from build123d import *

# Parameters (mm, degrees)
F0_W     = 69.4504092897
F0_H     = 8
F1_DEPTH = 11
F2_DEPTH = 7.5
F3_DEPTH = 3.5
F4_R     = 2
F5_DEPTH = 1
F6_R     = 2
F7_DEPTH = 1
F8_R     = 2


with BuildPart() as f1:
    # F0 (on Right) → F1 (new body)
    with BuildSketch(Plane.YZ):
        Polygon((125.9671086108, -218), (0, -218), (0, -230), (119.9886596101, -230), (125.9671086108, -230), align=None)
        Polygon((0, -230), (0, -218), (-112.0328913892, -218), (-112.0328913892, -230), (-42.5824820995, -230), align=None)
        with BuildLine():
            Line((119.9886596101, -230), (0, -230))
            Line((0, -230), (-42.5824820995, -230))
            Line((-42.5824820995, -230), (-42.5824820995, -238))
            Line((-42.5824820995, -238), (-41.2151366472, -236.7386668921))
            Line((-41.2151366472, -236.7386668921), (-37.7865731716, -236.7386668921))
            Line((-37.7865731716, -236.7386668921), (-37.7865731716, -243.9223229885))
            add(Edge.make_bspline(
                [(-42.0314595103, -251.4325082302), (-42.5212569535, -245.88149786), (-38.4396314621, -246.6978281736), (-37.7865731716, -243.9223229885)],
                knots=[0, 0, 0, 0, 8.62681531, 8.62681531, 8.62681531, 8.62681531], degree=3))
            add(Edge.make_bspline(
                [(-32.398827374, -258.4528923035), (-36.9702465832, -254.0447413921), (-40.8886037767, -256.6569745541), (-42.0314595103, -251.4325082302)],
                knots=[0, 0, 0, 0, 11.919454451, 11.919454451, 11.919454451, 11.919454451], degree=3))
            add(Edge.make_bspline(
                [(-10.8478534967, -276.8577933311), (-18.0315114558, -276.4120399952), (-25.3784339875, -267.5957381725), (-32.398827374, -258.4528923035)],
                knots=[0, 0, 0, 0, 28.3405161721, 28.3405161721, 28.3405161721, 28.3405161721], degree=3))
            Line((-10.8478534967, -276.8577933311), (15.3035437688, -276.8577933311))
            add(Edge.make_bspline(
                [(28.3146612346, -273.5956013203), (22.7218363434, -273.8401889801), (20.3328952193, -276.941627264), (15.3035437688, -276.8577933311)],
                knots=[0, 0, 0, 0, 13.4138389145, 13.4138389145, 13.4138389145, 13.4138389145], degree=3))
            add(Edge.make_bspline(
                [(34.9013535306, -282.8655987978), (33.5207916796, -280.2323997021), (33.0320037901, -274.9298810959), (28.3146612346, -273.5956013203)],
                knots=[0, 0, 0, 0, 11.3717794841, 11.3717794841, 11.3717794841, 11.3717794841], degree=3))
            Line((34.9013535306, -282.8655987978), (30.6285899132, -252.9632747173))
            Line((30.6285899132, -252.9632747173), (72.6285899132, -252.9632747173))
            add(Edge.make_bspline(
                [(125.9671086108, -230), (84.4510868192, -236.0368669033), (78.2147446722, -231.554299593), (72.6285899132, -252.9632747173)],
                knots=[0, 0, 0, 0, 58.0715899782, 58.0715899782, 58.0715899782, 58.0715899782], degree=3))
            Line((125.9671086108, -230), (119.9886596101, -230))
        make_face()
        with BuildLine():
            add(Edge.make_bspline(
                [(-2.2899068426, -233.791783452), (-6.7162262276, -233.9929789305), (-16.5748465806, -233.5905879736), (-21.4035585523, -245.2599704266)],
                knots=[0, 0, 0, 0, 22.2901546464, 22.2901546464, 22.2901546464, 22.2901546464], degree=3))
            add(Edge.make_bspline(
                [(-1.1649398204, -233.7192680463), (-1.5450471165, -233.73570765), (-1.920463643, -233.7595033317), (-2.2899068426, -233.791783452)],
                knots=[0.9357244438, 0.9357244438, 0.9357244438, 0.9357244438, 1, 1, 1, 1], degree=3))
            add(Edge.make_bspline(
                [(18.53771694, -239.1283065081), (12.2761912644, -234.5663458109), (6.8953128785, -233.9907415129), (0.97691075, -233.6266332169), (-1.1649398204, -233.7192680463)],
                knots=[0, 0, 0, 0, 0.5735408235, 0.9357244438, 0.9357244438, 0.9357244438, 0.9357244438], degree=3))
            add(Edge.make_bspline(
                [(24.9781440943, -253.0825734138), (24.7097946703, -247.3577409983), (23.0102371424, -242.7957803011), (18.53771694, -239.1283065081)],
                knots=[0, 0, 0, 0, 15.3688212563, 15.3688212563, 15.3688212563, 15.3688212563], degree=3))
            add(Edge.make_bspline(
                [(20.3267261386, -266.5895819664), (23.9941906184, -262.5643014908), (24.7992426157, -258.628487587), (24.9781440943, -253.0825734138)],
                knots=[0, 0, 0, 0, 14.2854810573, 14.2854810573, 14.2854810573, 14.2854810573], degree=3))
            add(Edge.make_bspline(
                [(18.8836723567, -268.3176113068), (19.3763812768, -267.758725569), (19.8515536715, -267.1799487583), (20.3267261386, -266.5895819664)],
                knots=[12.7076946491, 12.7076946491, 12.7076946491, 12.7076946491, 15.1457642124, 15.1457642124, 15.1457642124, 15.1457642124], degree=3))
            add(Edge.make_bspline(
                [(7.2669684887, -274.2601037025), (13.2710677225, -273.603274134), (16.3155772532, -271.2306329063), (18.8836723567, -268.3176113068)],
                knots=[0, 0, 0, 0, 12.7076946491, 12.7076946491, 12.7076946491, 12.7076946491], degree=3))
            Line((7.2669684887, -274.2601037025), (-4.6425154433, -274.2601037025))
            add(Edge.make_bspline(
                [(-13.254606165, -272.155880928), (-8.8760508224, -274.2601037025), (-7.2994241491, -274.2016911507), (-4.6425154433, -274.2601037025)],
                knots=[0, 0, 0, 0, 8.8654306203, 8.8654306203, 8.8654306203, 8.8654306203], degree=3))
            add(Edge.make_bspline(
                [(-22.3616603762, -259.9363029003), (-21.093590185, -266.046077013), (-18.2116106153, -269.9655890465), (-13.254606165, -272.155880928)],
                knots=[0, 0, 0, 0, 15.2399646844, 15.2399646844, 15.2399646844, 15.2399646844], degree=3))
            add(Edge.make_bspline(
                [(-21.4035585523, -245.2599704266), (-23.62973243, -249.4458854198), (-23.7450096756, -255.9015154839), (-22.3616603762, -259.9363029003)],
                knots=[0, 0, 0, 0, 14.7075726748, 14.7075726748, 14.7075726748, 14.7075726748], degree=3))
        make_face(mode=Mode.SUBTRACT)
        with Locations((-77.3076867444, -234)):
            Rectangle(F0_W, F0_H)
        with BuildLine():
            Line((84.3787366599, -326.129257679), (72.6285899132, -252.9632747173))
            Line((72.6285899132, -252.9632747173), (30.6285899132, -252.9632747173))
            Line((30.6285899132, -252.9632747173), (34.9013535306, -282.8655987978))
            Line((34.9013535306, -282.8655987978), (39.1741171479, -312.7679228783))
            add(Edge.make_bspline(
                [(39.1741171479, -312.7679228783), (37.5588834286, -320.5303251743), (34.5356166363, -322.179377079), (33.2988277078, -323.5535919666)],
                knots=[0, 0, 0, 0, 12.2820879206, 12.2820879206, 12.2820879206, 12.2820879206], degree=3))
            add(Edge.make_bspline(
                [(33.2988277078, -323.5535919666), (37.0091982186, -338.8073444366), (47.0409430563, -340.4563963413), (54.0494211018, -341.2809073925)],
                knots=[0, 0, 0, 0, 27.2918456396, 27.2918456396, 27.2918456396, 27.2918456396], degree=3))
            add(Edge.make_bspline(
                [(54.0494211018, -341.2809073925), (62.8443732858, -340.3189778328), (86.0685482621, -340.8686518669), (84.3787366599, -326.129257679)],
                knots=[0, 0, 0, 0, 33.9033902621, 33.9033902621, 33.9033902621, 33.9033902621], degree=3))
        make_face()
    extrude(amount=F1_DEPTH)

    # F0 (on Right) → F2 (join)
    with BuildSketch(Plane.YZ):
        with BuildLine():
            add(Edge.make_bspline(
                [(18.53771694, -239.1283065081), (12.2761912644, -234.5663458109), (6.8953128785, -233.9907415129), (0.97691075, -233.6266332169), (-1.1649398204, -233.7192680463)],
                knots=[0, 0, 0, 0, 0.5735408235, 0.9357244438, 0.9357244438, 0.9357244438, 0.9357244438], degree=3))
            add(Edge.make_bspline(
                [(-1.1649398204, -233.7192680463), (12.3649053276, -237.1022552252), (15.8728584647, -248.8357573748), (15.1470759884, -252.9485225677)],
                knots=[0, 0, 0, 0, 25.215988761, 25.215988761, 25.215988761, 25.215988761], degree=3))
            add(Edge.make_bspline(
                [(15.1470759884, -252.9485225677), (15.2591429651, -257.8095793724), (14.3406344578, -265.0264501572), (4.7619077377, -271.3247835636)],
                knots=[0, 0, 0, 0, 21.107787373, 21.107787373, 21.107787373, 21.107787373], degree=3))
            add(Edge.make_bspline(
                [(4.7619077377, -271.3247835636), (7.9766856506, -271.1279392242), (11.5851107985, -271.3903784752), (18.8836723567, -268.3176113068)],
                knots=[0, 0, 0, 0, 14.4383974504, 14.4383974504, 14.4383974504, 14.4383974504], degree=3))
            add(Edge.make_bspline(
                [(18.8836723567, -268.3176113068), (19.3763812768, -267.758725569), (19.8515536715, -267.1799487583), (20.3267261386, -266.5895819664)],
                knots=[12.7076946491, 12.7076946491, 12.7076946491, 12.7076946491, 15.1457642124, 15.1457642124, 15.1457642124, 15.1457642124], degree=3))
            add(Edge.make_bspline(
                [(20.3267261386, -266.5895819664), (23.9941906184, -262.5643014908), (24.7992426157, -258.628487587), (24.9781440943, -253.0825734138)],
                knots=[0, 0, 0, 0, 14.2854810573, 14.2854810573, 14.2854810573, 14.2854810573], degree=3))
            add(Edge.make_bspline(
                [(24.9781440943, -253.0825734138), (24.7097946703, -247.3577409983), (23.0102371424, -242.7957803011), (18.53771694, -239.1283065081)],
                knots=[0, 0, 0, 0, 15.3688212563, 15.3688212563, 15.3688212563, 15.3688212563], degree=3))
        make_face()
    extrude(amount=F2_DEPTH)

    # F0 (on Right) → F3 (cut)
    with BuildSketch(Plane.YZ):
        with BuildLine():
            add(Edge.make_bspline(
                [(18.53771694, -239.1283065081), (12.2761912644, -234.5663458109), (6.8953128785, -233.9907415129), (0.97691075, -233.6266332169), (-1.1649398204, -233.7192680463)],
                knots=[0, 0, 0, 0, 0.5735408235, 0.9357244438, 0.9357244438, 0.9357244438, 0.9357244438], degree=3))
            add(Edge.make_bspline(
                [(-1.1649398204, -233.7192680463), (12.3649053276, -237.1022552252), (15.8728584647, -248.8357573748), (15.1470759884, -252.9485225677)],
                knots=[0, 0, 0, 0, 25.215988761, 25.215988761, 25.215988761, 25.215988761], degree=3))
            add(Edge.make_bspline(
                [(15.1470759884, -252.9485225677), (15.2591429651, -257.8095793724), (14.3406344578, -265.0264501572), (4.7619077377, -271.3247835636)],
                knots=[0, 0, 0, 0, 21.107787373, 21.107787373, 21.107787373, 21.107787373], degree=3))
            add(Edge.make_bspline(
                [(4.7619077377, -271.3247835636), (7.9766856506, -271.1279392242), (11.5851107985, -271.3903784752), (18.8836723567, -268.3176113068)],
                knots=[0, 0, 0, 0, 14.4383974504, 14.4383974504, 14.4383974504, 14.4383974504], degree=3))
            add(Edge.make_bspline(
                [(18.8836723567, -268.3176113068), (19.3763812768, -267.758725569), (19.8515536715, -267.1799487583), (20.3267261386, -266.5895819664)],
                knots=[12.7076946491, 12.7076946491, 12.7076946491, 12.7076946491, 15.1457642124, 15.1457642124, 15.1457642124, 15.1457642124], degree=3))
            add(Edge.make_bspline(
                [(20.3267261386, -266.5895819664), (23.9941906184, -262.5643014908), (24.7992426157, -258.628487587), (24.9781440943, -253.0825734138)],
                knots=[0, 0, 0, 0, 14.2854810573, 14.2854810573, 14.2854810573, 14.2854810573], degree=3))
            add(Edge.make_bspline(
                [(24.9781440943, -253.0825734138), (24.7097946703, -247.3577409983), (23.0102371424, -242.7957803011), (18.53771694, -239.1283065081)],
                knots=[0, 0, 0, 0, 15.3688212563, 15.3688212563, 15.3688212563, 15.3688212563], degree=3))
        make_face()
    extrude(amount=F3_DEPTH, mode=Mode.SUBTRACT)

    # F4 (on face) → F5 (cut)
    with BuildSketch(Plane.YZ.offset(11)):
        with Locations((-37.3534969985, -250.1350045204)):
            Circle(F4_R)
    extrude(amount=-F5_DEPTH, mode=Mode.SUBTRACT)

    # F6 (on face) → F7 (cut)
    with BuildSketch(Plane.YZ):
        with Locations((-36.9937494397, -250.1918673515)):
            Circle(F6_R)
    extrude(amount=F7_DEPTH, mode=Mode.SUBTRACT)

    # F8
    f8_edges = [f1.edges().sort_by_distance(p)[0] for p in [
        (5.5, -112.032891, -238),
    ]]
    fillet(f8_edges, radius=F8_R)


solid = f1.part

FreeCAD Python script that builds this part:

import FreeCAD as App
import Part
import Sketcher
Q = App.Units.Quantity


def edges_at(feature, points):
    """Names of the edges that pass closest to the given points."""
    edges = feature.Shape.Edges
    near = lambda p: min(range(len(edges)), key=lambda i: edges[i].distToShape(Part.Vertex(*p))[0])
    return sorted({f"Edge{near(p) + 1}" for p in points})

doc = App.newDocument("Part")
body = doc.addObject("PartDesign::Body", "Body")

sketch1 = body.newObject("Sketcher::SketchObject", "Sketch")
sketch1.AttachmentSupport = (doc.getObject("YZ_Plane"), [""])
sketch1.MapMode = "FlatFace"
sketch1.addGeometry([
    Part.LineSegment(App.Vector(125.967109, -218, 0), App.Vector(-112.032891, -218, 0)),
    Part.LineSegment(App.Vector(-112.032891, -218, 0), App.Vector(-112.032891, -230, 0)),
    Part.LineSegment(App.Vector(-112.032891, -230, 0), App.Vector(-112.032891, -238, 0)),
    Part.LineSegment(App.Vector(-112.032891, -238, 0), App.Vector(-42.582482, -238, 0)),
    Part.LineSegment(App.Vector(-42.582482, -238, 0), App.Vector(-41.215137, -236.738667, 0)),
    Part.LineSegment(App.Vector(-41.215137, -236.738667, 0), App.Vector(-37.786573, -236.738667, 0)),
    Part.LineSegment(App.Vector(-37.786573, -236.738667, 0), App.Vector(-37.786573, -243.922323, 0)),
    Part.BSplineCurve([App.Vector(-42.03146, -251.432508, 0), App.Vector(-42.521257, -245.881498, 0), App.Vector(-38.439631, -246.697828, 0), App.Vector(-37.786573, -243.922323, 0)], [4, 4], [0, 8.62681531], False, 3, [1, 1, 1, 1], False),
    Part.BSplineCurve([App.Vector(-32.398827, -258.452892, 0), App.Vector(-36.970247, -254.044741, 0), App.Vector(-40.888604, -256.656975, 0), App.Vector(-42.03146, -251.432508, 0)], [4, 4], [0, 11.919454451], False, 3, [1, 1, 1, 1], False),
    Part.BSplineCurve([App.Vector(-10.847853, -276.857793, 0), App.Vector(-18.031511, -276.41204, 0), App.Vector(-25.378434, -267.595738, 0), App.Vector(-32.398827, -258.452892, 0)], [4, 4], [0, 28.340516172], False, 3, [1, 1, 1, 1], False),
    Part.LineSegment(App.Vector(-10.847853, -276.857793, 0), App.Vector(15.303544, -276.857793, 0)),
    Part.BSplineCurve([App.Vector(28.314661, -273.595601, 0), App.Vector(22.721836, -273.840189, 0), App.Vector(20.332895, -276.941627, 0), App.Vector(15.303544, -276.857793, 0)], [4, 4], [0, 13.413838914], False, 3, [1, 1, 1, 1], False),
    Part.BSplineCurve([App.Vector(34.901354, -282.865599, 0), App.Vector(33.520792, -280.2324, 0), App.Vector(33.032004, -274.929881, 0), App.Vector(28.314661, -273.595601, 0)], [4, 4], [0, 11.371779484], False, 3, [1, 1, 1, 1], False),
    Part.LineSegment(App.Vector(34.901354, -282.865599, 0), App.Vector(39.174117, -312.767923, 0)),
    Part.BSplineCurve([App.Vector(39.174117, -312.767923, 0), App.Vector(37.558883, -320.530325, 0), App.Vector(34.535617, -322.179377, 0), App.Vector(33.298828, -323.553592, 0)], [4, 4], [0, 12.282087921], False, 3, [1, 1, 1, 1], False),
    Part.BSplineCurve([App.Vector(33.298828, -323.553592, 0), App.Vector(37.009198, -338.807344, 0), App.Vector(47.040943, -340.456396, 0), App.Vector(54.049421, -341.280907, 0)], [4, 4], [0, 27.29184564], False, 3, [1, 1, 1, 1], False),
    Part.BSplineCurve([App.Vector(54.049421, -341.280907, 0), App.Vector(62.844373, -340.318978, 0), App.Vector(86.068548, -340.868652, 0), App.Vector(84.378737, -326.129258, 0)], [4, 4], [0, 33.903390262], False, 3, [1, 1, 1, 1], False),
    Part.LineSegment(App.Vector(84.378737, -326.129258, 0), App.Vector(72.62859, -252.963275, 0)),
    Part.BSplineCurve([App.Vector(125.967109, -230, 0), App.Vector(84.451087, -236.036867, 0), App.Vector(78.214745, -231.5543, 0), App.Vector(72.62859, -252.963275, 0)], [4, 4], [0, 58.071589978], False, 3, [1, 1, 1, 1], False),
    Part.LineSegment(App.Vector(125.967109, -230, 0), App.Vector(125.967109, -218, 0)),
    Part.BSplineCurve([App.Vector(-2.289907, -233.791783, 0), App.Vector(-6.716226, -233.992979, 0), App.Vector(-16.574847, -233.590588, 0), App.Vector(-21.403559, -245.25997, 0)], [4, 4], [0, 22.290154646], False, 3, [1, 1, 1, 1], False),
    Part.BSplineCurve([App.Vector(-1.16494, -233.719268, 0), App.Vector(-1.545047, -233.735708, 0), App.Vector(-1.920464, -233.759503, 0), App.Vector(-2.289907, -233.791783, 0)], [4, 4], [0.935724444, 1], False, 3, [1, 1, 1, 1], False),
    Part.BSplineCurve([App.Vector(18.537717, -239.128307, 0), App.Vector(12.276191, -234.566346, 0), App.Vector(6.895313, -233.990742, 0), App.Vector(0.976911, -233.626633, 0), App.Vector(-1.16494, -233.719268, 0)], [4, 1, 4], [0, 0.573540824, 0.935724444], False, 3, [1, 1, 1, 1, 1], False),
    Part.BSplineCurve([App.Vector(24.978144, -253.082573, 0), App.Vector(24.709795, -247.357741, 0), App.Vector(23.010237, -242.79578, 0), App.Vector(18.537717, -239.128307, 0)], [4, 4], [0, 15.368821256], False, 3, [1, 1, 1, 1], False),
    Part.BSplineCurve([App.Vector(20.326726, -266.589582, 0), App.Vector(23.994191, -262.564301, 0), App.Vector(24.799243, -258.628488, 0), App.Vector(24.978144, -253.082573, 0)], [4, 4], [0, 14.285481057], False, 3, [1, 1, 1, 1], False),
    Part.BSplineCurve([App.Vector(18.883672, -268.317611, 0), App.Vector(19.376381, -267.758726, 0), App.Vector(19.851554, -267.179949, 0), App.Vector(20.326726, -266.589582, 0)], [4, 4], [12.707694649, 15.145764212], False, 3, [1, 1, 1, 1], False),
    Part.BSplineCurve([App.Vector(7.266968, -274.260104, 0), App.Vector(13.271068, -273.603274, 0), App.Vector(16.315577, -271.230633, 0), App.Vector(18.883672, -268.317611, 0)], [4, 4], [0, 12.707694649], False, 3, [1, 1, 1, 1], False),
    Part.LineSegment(App.Vector(7.266968, -274.260104, 0), App.Vector(-4.642515, -274.260104, 0)),
    Part.BSplineCurve([App.Vector(-13.254606, -272.155881, 0), App.Vector(-8.876051, -274.260104, 0), App.Vector(-7.299424, -274.201691, 0), App.Vector(-4.642515, -274.260104, 0)], [4, 4], [0, 8.86543062], False, 3, [1, 1, 1, 1], False),
    Part.BSplineCurve([App.Vector(-22.36166, -259.936303, 0), App.Vector(-21.09359, -266.046077, 0), App.Vector(-18.211611, -269.965589, 0), App.Vector(-13.254606, -272.155881, 0)], [4, 4], [0, 15.239964684], False, 3, [1, 1, 1, 1], False),
    Part.BSplineCurve([App.Vector(-21.403559, -245.25997, 0), App.Vector(-23.629732, -249.445885, 0), App.Vector(-23.74501, -255.901515, 0), App.Vector(-22.36166, -259.936303, 0)], [4, 4], [0, 14.707572675], False, 3, [1, 1, 1, 1], False),
], False)
sketch1.addConstraint([
    Sketcher.Constraint("Block", 7),
    Sketcher.Constraint("Block", 8),
    Sketcher.Constraint("Block", 9),
    Sketcher.Constraint("Block", 11),
    Sketcher.Constraint("Block", 12),
    Sketcher.Constraint("Block", 14),
    Sketcher.Constraint("Block", 15),
    Sketcher.Constraint("Block", 16),
    Sketcher.Constraint("Block", 18),
    Sketcher.Constraint("Block", 20),
    Sketcher.Constraint("Block", 21),
    Sketcher.Constraint("Block", 22),
    Sketcher.Constraint("Block", 23),
    Sketcher.Constraint("Block", 24),
    Sketcher.Constraint("Block", 25),
    Sketcher.Constraint("Block", 26),
    Sketcher.Constraint("Block", 28),
    Sketcher.Constraint("Block", 29),
    Sketcher.Constraint("Block", 30),
    Sketcher.Constraint("Coincident", 0, 2, 1, 1),
    Sketcher.Constraint("Coincident", 1, 2, 2, 1),
    Sketcher.Constraint("Coincident", 2, 2, 3, 1),
    Sketcher.Constraint("Coincident", 3, 2, 4, 1),
    Sketcher.Constraint("Coincident", 4, 2, 5, 1),
    Sketcher.Constraint("Coincident", 5, 2, 6, 1),
    Sketcher.Constraint("Coincident", 6, 2, 7, 2),
    Sketcher.Constraint("Coincident", 9, 1, 10, 1),
    Sketcher.Constraint("Coincident", 10, 2, 11, 2),
    Sketcher.Constraint("Coincident", 12, 1, 13, 1),
    Sketcher.Constraint("Coincident", 13, 2, 14, 1),
    Sketcher.Constraint("Coincident", 16, 2, 17, 1),
    Sketcher.Constraint("Coincident", 17, 2, 18, 2),
    Sketcher.Constraint("Coincident", 18, 1, 19, 1),
    Sketcher.Constraint("Coincident", 19, 2, 0, 1),
    Sketcher.Constraint("Coincident", 26, 1, 27, 1),
    Sketcher.Constraint("Coincident", 27, 2, 28, 2),
    Sketcher.Constraint("Horizontal", 0),
    Sketcher.Constraint("Vertical", 1),
    Sketcher.Constraint("Vertical", 2),
    Sketcher.Constraint("Horizontal", 3),
    Sketcher.Constraint("Horizontal", 5),
    Sketcher.Constraint("Vertical", 6),
    Sketcher.Constraint("Vertical", 19),
    Sketcher.Constraint("Equal", 1, 19),
    Sketcher.Constraint("DistanceX", 0, 2, 0, 1, Q("238 mm")),
    Sketcher.Constraint("DistanceY", 1, 2, 1, 1, Q("12 mm")),
    Sketcher.Constraint("DistanceY", 2, 2, 2, 1, Q("8 mm")),
    Sketcher.Constraint("DistanceX", 3, 1, 3, 2, Q("69.450409 mm")),
    Sketcher.Constraint("DistanceX", 5, 1, 5, 2, Q("3.428563 mm")),
    Sketcher.Constraint("DistanceY", 6, 2, 6, 1, Q("7.183656 mm")),
])
pad1 = body.newObject("PartDesign::Pad", "Pad")
pad1.Profile = sketch1
pad1.Length = 11

sketch2 = body.newObject("Sketcher::SketchObject", "Sketch001")
sketch2.AttachmentSupport = (doc.getObject("YZ_Plane"), [""])
sketch2.MapMode = "FlatFace"
sketch2.addGeometry([
    Part.BSplineCurve([App.Vector(18.537717, -239.128307, 0), App.Vector(12.276191, -234.566346, 0), App.Vector(6.895313, -233.990742, 0), App.Vector(0.976911, -233.626633, 0), App.Vector(-1.16494, -233.719268, 0)], [4, 1, 4], [0, 0.573540824, 0.935724444], False, 3, [1, 1, 1, 1, 1], False),
    Part.BSplineCurve([App.Vector(-1.16494, -233.719268, 0), App.Vector(12.364905, -237.102255, 0), App.Vector(15.872858, -248.835757, 0), App.Vector(15.147076, -252.948523, 0)], [4, 4], [0, 25.215988761], False, 3, [1, 1, 1, 1], False),
    Part.BSplineCurve([App.Vector(15.147076, -252.948523, 0), App.Vector(15.259143, -257.809579, 0), App.Vector(14.340634, -265.02645, 0), App.Vector(4.761908, -271.324784, 0)], [4, 4], [0, 21.107787373], False, 3, [1, 1, 1, 1], False),
    Part.BSplineCurve([App.Vector(4.761908, -271.324784, 0), App.Vector(7.976686, -271.127939, 0), App.Vector(11.585111, -271.390378, 0), App.Vector(18.883672, -268.317611, 0)], [4, 4], [0, 14.43839745], False, 3, [1, 1, 1, 1], False),
    Part.BSplineCurve([App.Vector(18.883672, -268.317611, 0), App.Vector(19.376381, -267.758726, 0), App.Vector(19.851554, -267.179949, 0), App.Vector(20.326726, -266.589582, 0)], [4, 4], [12.707694649, 15.145764212], False, 3, [1, 1, 1, 1], False),
    Part.BSplineCurve([App.Vector(20.326726, -266.589582, 0), App.Vector(23.994191, -262.564301, 0), App.Vector(24.799243, -258.628488, 0), App.Vector(24.978144, -253.082573, 0)], [4, 4], [0, 14.285481057], False, 3, [1, 1, 1, 1], False),
    Part.BSplineCurve([App.Vector(24.978144, -253.082573, 0), App.Vector(24.709795, -247.357741, 0), App.Vector(23.010237, -242.79578, 0), App.Vector(18.537717, -239.128307, 0)], [4, 4], [0, 15.368821256], False, 3, [1, 1, 1, 1], False),
], False)
sketch2.addConstraint([
    Sketcher.Constraint("Block", 0),
    Sketcher.Constraint("Block", 1),
    Sketcher.Constraint("Block", 2),
    Sketcher.Constraint("Block", 3),
    Sketcher.Constraint("Block", 4),
    Sketcher.Constraint("Block", 5),
    Sketcher.Constraint("Block", 6),
])
pad2 = body.newObject("PartDesign::Pad", "Pad001")
pad2.Profile = sketch2
pad2.Length = 7.5

sketch3 = body.newObject("Sketcher::SketchObject", "Sketch002")
sketch3.AttachmentSupport = (doc.getObject("YZ_Plane"), [""])
sketch3.MapMode = "FlatFace"
sketch3.addGeometry([
    Part.BSplineCurve([App.Vector(18.537717, -239.128307, 0), App.Vector(12.276191, -234.566346, 0), App.Vector(6.895313, -233.990742, 0), App.Vector(0.976911, -233.626633, 0), App.Vector(-1.16494, -233.719268, 0)], [4, 1, 4], [0, 0.573540824, 0.935724444], False, 3, [1, 1, 1, 1, 1], False),
    Part.BSplineCurve([App.Vector(-1.16494, -233.719268, 0), App.Vector(12.364905, -237.102255, 0), App.Vector(15.872858, -248.835757, 0), App.Vector(15.147076, -252.948523, 0)], [4, 4], [0, 25.215988761], False, 3, [1, 1, 1, 1], False),
    Part.BSplineCurve([App.Vector(15.147076, -252.948523, 0), App.Vector(15.259143, -257.809579, 0), App.Vector(14.340634, -265.02645, 0), App.Vector(4.761908, -271.324784, 0)], [4, 4], [0, 21.107787373], False, 3, [1, 1, 1, 1], False),
    Part.BSplineCurve([App.Vector(4.761908, -271.324784, 0), App.Vector(7.976686, -271.127939, 0), App.Vector(11.585111, -271.390378, 0), App.Vector(18.883672, -268.317611, 0)], [4, 4], [0, 14.43839745], False, 3, [1, 1, 1, 1], False),
    Part.BSplineCurve([App.Vector(18.883672, -268.317611, 0), App.Vector(19.376381, -267.758726, 0), App.Vector(19.851554, -267.179949, 0), App.Vector(20.326726, -266.589582, 0)], [4, 4], [12.707694649, 15.145764212], False, 3, [1, 1, 1, 1], False),
    Part.BSplineCurve([App.Vector(20.326726, -266.589582, 0), App.Vector(23.994191, -262.564301, 0), App.Vector(24.799243, -258.628488, 0), App.Vector(24.978144, -253.082573, 0)], [4, 4], [0, 14.285481057], False, 3, [1, 1, 1, 1], False),
    Part.BSplineCurve([App.Vector(24.978144, -253.082573, 0), App.Vector(24.709795, -247.357741, 0), App.Vector(23.010237, -242.79578, 0), App.Vector(18.537717, -239.128307, 0)], [4, 4], [0, 15.368821256], False, 3, [1, 1, 1, 1], False),
], False)
sketch3.addConstraint([
    Sketcher.Constraint("Block", 0),
    Sketcher.Constraint("Block", 1),
    Sketcher.Constraint("Block", 2),
    Sketcher.Constraint("Block", 3),
    Sketcher.Constraint("Block", 4),
    Sketcher.Constraint("Block", 5),
    Sketcher.Constraint("Block", 6),
])
pocket1 = body.newObject("PartDesign::Pocket", "Pocket")
pocket1.Profile = sketch3
pocket1.Length = 3.5
pocket1.Reversed = True

sketch4 = body.newObject("Sketcher::SketchObject", "Sketch003")
sketch4.AttachmentSupport = (doc.getObject("YZ_Plane"), [""])
sketch4.MapMode = "FlatFace"
sketch4.AttachmentOffset = App.Placement(App.Vector(0, 0, 11), App.Rotation())
sketch4.addGeometry(Part.Circle(App.Vector(-37.4, -250.1, 0), App.Vector(0, 0, 1), 2), False)
sketch4.addConstraint([
    Sketcher.Constraint("Diameter", 0, Q("4 mm")),
    Sketcher.Constraint("DistanceX", 0, 3, -1, 1, Q("37.353497 mm")),
    Sketcher.Constraint("DistanceY", 0, 3, -1, 1, Q("250.135005 mm")),
])
pocket2 = body.newObject("PartDesign::Pocket", "Pocket001")
pocket2.Profile = sketch4
pocket2.Length = 1

sketch5 = body.newObject("Sketcher::SketchObject", "Sketch004")
sketch5.AttachmentSupport = (doc.getObject("YZ_Plane"), [""])
sketch5.MapMode = "FlatFace"
sketch5.addGeometry(Part.Circle(App.Vector(-37, -250.2, 0), App.Vector(0, 0, 1), 2), False)
sketch5.addConstraint([
    Sketcher.Constraint("Diameter", 0, Q("4 mm")),
    Sketcher.Constraint("DistanceX", 0, 3, -1, 1, Q("36.993749 mm")),
    Sketcher.Constraint("DistanceY", 0, 3, -1, 1, Q("250.191867 mm")),
])
pocket3 = body.newObject("PartDesign::Pocket", "Pocket002")
pocket3.Profile = sketch5
pocket3.Length = 1
pocket3.Reversed = True
doc.recompute()

fillet = body.newObject("PartDesign::Fillet", "Fillet")
fillet.Base = (pocket3, edges_at(pocket3, [(5.5, -112.033, -238)]))
fillet.Radius = 2

doc.recompute()
